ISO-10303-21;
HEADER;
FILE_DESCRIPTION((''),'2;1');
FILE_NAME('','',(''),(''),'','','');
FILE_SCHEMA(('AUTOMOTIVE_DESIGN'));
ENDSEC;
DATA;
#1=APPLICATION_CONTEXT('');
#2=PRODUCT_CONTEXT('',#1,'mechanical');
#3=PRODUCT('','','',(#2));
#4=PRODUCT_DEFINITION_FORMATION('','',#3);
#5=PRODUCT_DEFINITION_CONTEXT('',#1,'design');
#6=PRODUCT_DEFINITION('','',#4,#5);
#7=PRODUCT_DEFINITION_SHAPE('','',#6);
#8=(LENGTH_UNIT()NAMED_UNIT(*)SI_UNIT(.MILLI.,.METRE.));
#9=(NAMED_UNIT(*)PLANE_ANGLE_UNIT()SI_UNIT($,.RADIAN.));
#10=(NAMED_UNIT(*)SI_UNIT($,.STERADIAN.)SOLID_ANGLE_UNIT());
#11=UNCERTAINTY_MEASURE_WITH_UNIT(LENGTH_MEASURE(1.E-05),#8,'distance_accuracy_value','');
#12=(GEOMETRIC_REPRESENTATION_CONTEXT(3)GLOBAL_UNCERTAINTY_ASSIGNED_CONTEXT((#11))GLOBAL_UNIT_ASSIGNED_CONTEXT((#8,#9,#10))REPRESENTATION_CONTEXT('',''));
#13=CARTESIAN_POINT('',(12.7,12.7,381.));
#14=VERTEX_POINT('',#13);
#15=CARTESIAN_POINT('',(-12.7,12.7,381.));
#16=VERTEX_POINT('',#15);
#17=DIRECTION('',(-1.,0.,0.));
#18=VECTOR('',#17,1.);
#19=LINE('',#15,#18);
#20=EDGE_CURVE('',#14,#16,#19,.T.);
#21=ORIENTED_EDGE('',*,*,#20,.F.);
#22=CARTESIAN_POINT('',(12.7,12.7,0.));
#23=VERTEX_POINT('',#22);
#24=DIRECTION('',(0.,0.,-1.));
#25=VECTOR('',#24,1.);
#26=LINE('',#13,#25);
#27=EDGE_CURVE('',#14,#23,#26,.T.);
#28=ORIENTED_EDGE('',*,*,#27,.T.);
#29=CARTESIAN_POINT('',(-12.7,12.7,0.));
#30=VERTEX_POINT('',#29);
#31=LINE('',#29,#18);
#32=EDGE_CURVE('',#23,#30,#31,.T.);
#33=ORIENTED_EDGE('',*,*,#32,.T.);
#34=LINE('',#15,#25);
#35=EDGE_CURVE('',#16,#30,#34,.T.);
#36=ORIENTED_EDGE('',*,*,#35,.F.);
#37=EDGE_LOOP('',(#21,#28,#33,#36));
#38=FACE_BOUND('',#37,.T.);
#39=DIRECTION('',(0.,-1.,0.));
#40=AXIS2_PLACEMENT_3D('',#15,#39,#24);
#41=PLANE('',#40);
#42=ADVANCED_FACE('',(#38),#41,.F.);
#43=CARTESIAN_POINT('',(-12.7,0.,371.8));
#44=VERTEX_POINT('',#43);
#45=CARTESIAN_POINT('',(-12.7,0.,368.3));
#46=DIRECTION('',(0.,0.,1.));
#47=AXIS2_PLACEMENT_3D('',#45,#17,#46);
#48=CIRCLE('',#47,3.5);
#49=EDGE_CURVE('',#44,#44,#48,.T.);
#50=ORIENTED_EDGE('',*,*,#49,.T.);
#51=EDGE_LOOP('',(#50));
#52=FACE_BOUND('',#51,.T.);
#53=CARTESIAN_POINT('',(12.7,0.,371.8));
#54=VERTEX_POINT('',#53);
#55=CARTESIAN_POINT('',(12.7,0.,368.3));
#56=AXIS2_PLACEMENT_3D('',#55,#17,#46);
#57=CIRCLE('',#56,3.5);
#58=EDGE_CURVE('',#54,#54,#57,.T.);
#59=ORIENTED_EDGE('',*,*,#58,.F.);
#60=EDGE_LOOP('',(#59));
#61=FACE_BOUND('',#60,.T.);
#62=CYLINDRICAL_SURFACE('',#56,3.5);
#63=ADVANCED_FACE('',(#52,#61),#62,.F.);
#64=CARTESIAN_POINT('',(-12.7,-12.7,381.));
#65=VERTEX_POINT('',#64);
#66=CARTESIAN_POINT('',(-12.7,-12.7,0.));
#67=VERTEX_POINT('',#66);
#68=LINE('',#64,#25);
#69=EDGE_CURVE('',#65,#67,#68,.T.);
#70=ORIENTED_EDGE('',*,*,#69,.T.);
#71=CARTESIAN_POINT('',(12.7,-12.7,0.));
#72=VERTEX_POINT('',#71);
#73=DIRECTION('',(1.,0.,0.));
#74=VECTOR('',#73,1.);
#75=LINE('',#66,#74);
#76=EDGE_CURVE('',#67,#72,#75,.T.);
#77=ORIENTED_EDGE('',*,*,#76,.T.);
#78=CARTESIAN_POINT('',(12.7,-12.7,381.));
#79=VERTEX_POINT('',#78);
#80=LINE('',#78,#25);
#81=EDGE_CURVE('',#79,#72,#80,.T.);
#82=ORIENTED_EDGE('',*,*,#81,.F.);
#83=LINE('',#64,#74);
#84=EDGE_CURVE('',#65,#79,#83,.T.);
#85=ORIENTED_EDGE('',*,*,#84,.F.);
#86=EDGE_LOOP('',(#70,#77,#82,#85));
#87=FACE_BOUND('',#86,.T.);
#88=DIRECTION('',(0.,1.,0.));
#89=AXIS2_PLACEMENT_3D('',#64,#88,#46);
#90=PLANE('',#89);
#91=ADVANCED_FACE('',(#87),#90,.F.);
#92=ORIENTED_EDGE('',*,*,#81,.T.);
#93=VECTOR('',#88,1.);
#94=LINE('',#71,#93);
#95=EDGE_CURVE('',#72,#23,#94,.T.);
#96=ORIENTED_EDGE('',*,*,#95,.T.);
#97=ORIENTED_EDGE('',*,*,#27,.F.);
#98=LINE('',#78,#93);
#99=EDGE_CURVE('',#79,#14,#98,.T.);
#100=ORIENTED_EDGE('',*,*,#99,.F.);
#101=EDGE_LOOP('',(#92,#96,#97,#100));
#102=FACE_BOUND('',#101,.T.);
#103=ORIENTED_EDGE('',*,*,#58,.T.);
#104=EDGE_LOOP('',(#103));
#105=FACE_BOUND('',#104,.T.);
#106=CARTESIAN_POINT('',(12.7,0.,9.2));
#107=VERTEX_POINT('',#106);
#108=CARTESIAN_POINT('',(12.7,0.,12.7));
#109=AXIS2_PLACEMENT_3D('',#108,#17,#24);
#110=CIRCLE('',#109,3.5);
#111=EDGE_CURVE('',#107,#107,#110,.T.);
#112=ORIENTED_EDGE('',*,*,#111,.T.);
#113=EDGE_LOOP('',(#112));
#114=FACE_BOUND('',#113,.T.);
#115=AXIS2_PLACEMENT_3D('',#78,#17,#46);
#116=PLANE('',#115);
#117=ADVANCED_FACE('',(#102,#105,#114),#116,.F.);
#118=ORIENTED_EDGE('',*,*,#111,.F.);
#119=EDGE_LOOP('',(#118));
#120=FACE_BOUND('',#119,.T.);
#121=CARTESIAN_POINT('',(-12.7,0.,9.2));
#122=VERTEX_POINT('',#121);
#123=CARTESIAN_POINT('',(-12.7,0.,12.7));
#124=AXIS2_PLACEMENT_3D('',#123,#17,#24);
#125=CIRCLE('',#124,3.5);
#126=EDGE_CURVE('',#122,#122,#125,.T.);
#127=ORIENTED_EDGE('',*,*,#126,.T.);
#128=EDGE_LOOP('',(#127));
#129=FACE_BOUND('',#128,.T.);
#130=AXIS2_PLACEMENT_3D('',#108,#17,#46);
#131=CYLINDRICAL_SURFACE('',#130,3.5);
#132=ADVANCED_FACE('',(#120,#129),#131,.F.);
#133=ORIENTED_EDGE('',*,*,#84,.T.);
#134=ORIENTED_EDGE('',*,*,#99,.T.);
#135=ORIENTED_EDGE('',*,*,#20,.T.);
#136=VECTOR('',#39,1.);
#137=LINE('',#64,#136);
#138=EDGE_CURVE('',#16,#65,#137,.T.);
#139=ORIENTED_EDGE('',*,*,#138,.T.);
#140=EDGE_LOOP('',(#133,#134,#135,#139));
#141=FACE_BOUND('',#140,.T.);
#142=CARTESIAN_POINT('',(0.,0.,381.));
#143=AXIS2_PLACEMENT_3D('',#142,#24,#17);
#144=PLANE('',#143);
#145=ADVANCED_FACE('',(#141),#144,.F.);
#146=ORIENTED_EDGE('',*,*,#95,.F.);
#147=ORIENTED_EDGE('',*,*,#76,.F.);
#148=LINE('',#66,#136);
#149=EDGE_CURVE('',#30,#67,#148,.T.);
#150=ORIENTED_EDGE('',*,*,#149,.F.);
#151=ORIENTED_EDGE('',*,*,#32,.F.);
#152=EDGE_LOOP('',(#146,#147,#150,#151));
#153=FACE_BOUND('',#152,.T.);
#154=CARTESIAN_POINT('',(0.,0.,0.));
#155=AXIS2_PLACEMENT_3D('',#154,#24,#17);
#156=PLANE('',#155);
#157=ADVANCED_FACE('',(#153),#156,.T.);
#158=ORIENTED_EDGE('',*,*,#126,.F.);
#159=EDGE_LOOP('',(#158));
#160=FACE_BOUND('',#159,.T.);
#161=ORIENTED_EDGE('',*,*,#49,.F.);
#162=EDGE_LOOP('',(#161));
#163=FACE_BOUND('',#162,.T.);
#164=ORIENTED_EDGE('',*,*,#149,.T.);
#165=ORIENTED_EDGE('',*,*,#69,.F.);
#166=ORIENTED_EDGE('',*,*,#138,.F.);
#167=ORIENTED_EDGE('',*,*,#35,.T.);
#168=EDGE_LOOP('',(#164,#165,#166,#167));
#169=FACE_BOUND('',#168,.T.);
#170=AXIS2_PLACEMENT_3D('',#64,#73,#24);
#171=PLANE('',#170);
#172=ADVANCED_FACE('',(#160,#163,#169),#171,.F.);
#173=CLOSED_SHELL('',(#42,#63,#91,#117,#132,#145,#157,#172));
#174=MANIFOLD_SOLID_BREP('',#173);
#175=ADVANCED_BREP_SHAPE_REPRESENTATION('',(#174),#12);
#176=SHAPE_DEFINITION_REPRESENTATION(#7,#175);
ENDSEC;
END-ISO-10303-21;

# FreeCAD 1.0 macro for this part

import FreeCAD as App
import Part
import Sketcher

V = App.Vector


def add_polygon(sketch, points):
    """Adds a closed chain of lines whose ends are joined by coincident constraints."""
    first, n = sketch.GeometryCount, len(points)
    for a, b in zip(points, points[1:] + points[:1]):
        sketch.addGeometry(Part.LineSegment(App.Vector(*a, 0), App.Vector(*b, 0)), False)
    for i in range(n):
        sketch.addConstraint(Sketcher.Constraint("Coincident", first + i, 2, first + (i + 1) % n, 1))

doc = App.newDocument("Part")
body = doc.addObject("PartDesign::Body", "Body")

# Sketch on XY plane
sketch1 = body.newObject("Sketcher::SketchObject", "Sketch")
sketch1.AttachmentSupport = (doc.getObject("XY_Plane"), [""])
sketch1.MapMode = "FlatFace"
add_polygon(sketch1, [(-13, 13), (-13, -13), (13, -13), (13, 13)])  # lines 0-3
sketch1.addConstraint([
    Sketcher.Constraint("Vertical", 0),
    Sketcher.Constraint("Horizontal", 1),
    Sketcher.Constraint("Vertical", 2),
    Sketcher.Constraint("Horizontal", 3),
    Sketcher.Constraint("Symmetric", 0, 2, 2, 2, -1, 1),
    Sketcher.Constraint("Equal", 3, 0),
    Sketcher.Constraint("DistanceX", 1, 1, 1, 2, 25.4),
])
pad1 = body.newObject("PartDesign::Pad", "Pad")
pad1.Profile = sketch1
pad1.Length = 381

# Sketch on YZ plane
sketch2 = body.newObject("Sketcher::SketchObject", "Sketch001")
sketch2.AttachmentSupport = (doc.getObject("YZ_Plane"), [""])
sketch2.MapMode = "FlatFace"
sketch2.AttachmentOffset = App.Placement(V(0, 0, -12.7), App.Rotation())
sketch2.addGeometry([
    Part.Circle(V(0, 368.3, 0), V(0, 0, 1), 3.5),
    Part.Circle(V(0, 12.7, 0), V(0, 0, 1), 3.5),
], False)
sketch2.addConstraint([
    Sketcher.Constraint("Equal", 0, 1),
    Sketcher.Constraint("PointOnObject", 0, 3, -2),
    Sketcher.Constraint("PointOnObject", 1, 3, -2),
    Sketcher.Constraint("Diameter", 0, 7.0),
    Sketcher.Constraint("DistanceY", -1, 1, 0, 3, 368.3),
    Sketcher.Constraint("DistanceY", -1, 1, 1, 3, 12.7),
])
pocket1 = body.newObject("PartDesign::Pocket", "Pocket")
pocket1.Profile = sketch2
pocket1.Type = "ThroughAll"
pocket1.Reversed = True

doc.recompute()
